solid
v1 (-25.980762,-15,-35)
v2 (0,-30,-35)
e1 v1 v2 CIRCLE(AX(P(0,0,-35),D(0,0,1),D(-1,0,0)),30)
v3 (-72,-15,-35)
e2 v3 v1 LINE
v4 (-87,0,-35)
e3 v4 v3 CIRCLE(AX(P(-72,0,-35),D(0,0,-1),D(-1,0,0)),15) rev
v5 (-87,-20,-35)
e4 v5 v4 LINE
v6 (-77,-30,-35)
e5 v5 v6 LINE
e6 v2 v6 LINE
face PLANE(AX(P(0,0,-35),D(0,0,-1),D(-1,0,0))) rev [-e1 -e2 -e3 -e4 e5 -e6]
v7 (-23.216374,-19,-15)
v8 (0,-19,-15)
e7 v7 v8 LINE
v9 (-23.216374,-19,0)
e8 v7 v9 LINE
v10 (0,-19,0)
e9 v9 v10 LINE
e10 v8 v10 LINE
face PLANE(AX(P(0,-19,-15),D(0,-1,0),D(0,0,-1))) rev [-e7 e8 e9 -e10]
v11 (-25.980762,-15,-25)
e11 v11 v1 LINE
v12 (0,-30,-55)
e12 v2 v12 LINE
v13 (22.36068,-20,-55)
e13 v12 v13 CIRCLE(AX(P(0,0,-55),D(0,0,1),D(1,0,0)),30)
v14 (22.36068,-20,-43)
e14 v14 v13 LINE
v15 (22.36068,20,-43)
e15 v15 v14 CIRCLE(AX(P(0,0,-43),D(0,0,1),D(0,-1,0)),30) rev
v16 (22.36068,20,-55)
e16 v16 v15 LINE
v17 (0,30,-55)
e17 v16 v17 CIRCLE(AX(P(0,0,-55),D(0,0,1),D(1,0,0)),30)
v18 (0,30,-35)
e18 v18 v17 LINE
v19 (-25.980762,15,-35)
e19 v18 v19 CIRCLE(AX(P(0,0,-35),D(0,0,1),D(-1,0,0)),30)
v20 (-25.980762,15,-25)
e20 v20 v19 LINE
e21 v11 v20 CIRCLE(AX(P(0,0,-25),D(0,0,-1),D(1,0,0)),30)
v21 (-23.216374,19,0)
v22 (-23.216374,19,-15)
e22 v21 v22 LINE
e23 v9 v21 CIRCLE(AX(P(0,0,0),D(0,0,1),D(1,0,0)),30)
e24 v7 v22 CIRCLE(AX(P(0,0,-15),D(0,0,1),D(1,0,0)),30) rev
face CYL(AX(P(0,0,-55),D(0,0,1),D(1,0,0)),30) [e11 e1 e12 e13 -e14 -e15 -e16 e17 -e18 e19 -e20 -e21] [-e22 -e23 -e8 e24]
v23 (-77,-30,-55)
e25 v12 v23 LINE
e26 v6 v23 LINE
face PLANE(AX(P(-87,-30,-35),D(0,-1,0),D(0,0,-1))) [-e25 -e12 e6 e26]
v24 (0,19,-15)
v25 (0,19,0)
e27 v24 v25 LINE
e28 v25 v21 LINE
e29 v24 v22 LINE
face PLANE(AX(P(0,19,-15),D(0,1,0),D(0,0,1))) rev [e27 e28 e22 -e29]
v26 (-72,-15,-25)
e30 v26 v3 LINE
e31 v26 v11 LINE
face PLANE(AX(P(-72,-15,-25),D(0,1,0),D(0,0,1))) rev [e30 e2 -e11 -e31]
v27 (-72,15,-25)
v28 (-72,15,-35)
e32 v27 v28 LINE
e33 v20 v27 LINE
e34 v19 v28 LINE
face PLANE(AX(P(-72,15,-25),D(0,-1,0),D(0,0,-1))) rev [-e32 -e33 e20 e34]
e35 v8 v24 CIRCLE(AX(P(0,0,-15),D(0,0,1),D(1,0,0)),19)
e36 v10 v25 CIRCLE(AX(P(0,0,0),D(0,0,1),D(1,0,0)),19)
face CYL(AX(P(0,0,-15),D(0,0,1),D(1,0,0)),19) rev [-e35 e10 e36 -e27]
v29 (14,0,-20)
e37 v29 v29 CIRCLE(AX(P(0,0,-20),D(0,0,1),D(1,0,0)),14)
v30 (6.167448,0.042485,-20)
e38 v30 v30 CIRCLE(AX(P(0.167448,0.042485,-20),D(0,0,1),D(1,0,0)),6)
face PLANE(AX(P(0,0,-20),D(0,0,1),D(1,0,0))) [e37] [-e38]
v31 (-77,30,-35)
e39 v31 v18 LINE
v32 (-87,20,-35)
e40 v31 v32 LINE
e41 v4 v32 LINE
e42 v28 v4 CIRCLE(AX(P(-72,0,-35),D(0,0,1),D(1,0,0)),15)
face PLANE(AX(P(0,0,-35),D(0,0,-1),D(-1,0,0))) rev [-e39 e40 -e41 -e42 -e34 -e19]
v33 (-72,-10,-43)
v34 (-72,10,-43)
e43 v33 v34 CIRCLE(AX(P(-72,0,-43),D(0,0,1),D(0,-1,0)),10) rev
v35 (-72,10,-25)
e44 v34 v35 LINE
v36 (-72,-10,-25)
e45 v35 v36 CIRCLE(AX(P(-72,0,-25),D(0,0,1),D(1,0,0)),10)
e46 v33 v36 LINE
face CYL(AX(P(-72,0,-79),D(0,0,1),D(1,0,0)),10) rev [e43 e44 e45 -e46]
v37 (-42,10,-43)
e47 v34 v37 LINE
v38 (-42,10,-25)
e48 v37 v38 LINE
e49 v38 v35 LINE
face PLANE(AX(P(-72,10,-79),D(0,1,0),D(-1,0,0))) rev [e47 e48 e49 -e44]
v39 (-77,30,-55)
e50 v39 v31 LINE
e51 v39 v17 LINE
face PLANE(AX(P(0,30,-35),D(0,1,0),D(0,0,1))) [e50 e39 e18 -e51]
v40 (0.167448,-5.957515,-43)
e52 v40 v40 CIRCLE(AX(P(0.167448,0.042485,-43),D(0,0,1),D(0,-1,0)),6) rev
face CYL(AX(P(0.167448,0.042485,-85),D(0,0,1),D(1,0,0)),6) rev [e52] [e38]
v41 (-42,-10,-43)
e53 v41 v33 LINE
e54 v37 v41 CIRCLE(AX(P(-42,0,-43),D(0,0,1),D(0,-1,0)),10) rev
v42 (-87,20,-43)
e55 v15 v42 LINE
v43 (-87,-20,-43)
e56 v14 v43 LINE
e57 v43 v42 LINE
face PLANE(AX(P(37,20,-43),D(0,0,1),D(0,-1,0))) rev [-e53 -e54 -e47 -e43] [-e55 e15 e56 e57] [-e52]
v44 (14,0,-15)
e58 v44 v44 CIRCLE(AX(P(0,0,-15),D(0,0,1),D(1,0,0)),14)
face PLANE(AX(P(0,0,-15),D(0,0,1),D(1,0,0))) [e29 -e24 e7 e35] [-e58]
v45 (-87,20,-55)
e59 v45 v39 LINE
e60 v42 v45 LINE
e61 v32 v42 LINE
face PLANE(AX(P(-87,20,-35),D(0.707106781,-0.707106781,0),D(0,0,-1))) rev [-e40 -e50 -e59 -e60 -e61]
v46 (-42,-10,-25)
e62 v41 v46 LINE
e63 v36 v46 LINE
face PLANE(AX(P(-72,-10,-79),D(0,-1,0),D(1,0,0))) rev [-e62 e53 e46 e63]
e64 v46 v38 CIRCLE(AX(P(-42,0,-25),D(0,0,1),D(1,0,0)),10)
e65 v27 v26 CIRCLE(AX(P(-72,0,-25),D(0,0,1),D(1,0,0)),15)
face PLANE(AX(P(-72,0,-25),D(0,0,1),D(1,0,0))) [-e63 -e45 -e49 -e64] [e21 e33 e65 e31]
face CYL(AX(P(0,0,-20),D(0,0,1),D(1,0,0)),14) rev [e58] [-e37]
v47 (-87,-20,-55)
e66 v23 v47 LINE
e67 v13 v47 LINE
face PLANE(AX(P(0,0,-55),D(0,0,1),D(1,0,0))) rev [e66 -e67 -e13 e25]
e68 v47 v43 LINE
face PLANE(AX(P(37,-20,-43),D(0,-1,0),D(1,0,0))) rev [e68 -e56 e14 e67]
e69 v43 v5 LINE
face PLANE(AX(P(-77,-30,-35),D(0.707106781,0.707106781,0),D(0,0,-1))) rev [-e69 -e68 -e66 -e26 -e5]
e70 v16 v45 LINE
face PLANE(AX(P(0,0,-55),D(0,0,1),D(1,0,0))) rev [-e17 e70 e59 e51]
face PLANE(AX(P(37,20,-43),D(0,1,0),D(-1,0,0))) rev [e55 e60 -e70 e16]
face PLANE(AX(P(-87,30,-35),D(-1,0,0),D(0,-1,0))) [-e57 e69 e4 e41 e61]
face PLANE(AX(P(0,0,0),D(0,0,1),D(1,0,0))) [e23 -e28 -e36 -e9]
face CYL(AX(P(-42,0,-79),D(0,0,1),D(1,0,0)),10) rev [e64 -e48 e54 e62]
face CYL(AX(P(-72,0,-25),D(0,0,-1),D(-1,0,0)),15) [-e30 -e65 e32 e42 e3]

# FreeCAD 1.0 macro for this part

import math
import FreeCAD as App
import Part
import Sketcher
Q = App.Units.Quantity


def edges_at(feature, points):
    """Names of the edges that pass closest to the given points."""
    edges = feature.Shape.Edges
    near = lambda p: min(range(len(edges)), key=lambda i: edges[i].distToShape(Part.Vertex(*p))[0])
    return sorted({f"Edge{near(p) + 1}" for p in points})

doc = App.newDocument("Part")
body = doc.addObject("PartDesign::Body", "Body")

sketch1 = body.newObject("Sketcher::SketchObject", "Sketch")
sketch1.AttachmentSupport = (doc.getObject("XY_Plane"), [""])
sketch1.MapMode = "FlatFace"
sketch1.addGeometry(Part.Circle(App.Vector(0, 0, 0), App.Vector(0, 0, 1), 30), False)
sketch1.addConstraint([
    Sketcher.Constraint("Coincident", 0, 3, -1, 1),
    Sketcher.Constraint("Diameter", 0, Q("60 mm")),
])
pad1 = body.newObject("PartDesign::Pad", "Pad")
pad1.Profile = sketch1
pad1.Length = 55
pad1.Reversed = True

sketch2 = body.newObject("Sketcher::SketchObject", "Sketch001")
sketch2.AttachmentSupport = (doc.getObject("XY_Plane"), [""])
sketch2.MapMode = "FlatFace"
sketch2.AttachmentOffset = App.Placement(App.Vector(0, 0, -35), App.Rotation())
sketch2.addGeometry([
    Part.LineSegment(App.Vector(-87, 30, 0), App.Vector(0, 30, 0)),
    Part.ArcOfCircle(Part.Circle(App.Vector(0, 0, 0), App.Vector(0, 0, 1), 30), math.radians(90), math.radians(270)),
    Part.LineSegment(App.Vector(0, -30, 0), App.Vector(-87, -30, 0)),
    Part.LineSegment(App.Vector(-87, -30, 0), App.Vector(-87, 30, 0)),
], False)
sketch2.addConstraint([
    Sketcher.Constraint("Tangent", 0, 2, 1, 1),
    Sketcher.Constraint("Tangent", 1, 2, 2, 1),
    Sketcher.Constraint("Coincident", 2, 2, 3, 1),
    Sketcher.Constraint("Coincident", 3, 2, 0, 1),
    Sketcher.Constraint("Horizontal", 0),
    Sketcher.Constraint("Horizontal", 2),
    Sketcher.Constraint("Vertical", 3),
    Sketcher.Constraint("Coincident", 1, 3, -1, 1),
    Sketcher.Constraint("Radius", 1, Q("30 mm")),
    Sketcher.Constraint("DistanceX", 0, 1, 0, 2, Q("87 mm")),
])
pad2 = body.newObject("PartDesign::Pad", "Pad001")
pad2.Profile = sketch2
pad2.Length = 20
pad2.Reversed = True

sketch3 = body.newObject("Sketcher::SketchObject", "Sketch002")
sketch3.AttachmentSupport = (doc.getObject("XY_Plane"), [""])
sketch3.MapMode = "FlatFace"
sketch3.addGeometry([
    Part.LineSegment(App.Vector(-43, -19, 0), App.Vector(0, -19, 0)),
    Part.ArcOfCircle(Part.Circle(App.Vector(0, 0, 0), App.Vector(0, 0, 1), 19), math.radians(-90), math.radians(90)),
    Part.LineSegment(App.Vector(0, 19, 0), App.Vector(-43, 19, 0)),
    Part.LineSegment(App.Vector(-43, 19, 0), App.Vector(-43, -19, 0)),
], False)
sketch3.addConstraint([
    Sketcher.Constraint("Tangent", 0, 2, 1, 1),
    Sketcher.Constraint("Tangent", 1, 2, 2, 1),
    Sketcher.Constraint("Coincident", 2, 2, 3, 1),
    Sketcher.Constraint("Coincident", 3, 2, 0, 1),
    Sketcher.Constraint("Horizontal", 0),
    Sketcher.Constraint("Horizontal", 2),
    Sketcher.Constraint("Vertical", 3),
    Sketcher.Constraint("Coincident", 1, 3, -1, 1),
    Sketcher.Constraint("Radius", 1, Q("19 mm")),
    Sketcher.Constraint("DistanceX", 0, 1, 0, 2, Q("43.251214 mm")),
])
pocket1 = body.newObject("PartDesign::Pocket", "Pocket")
pocket1.Profile = sketch3
pocket1.Length = 15

sketch4 = body.newObject("Sketcher::SketchObject", "Sketch003")
sketch4.AttachmentSupport = (doc.getObject("XY_Plane"), [""])
sketch4.MapMode = "FlatFace"
sketch4.AttachmentOffset = App.Placement(App.Vector(0, 0, -15), App.Rotation())
sketch4.addGeometry(Part.Circle(App.Vector(0, 0, 0), App.Vector(0, 0, 1), 14), False)
sketch4.addConstraint([
    Sketcher.Constraint("Coincident", 0, 3, -1, 1),
    Sketcher.Constraint("Diameter", 0, Q("28 mm")),
])
pocket2 = body.newObject("PartDesign::Pocket", "Pocket001")
pocket2.Profile = sketch4
pocket2.Length = 5

sketch5 = body.newObject("Sketcher::SketchObject", "Sketch004")
sketch5.AttachmentSupport = (doc.getObject("XY_Plane"), [""])
sketch5.MapMode = "FlatFace"
sketch5.AttachmentOffset = App.Placement(App.Vector(0, 0, -20), App.Rotation())
sketch5.addGeometry(Part.Circle(App.Vector(0, 0, 0), App.Vector(0, 0, 1), 6), False)
sketch5.addConstraint([
    Sketcher.Constraint("Diameter", 0, Q("12 mm")),
    Sketcher.Constraint("DistanceX", -1, 1, 0, 3, Q("0.167448 mm")),
    Sketcher.Constraint("DistanceY", -1, 1, 0, 3, Q("0.042485 mm")),
])
pocket3 = body.newObject("PartDesign::Pocket", "Pocket002")
pocket3.Profile = sketch5
pocket3.Length = 65
doc.recompute()

chamfer = body.newObject("PartDesign::Chamfer", "Chamfer")
chamfer.Base = (pocket3, edges_at(pocket3, [(-87, 30, -45)]))
chamfer.Size = 10
doc.recompute()

chamfer2 = body.newObject("PartDesign::Chamfer", "Chamfer001")
chamfer2.Base = (chamfer, edges_at(chamfer, [(-87, -30, -45)]))
chamfer2.Size = 10

sketch6 = body.newObject("Sketcher::SketchObject", "Sketch005")
sketch6.AttachmentSupport = (doc.getObject("XY_Plane"), [""])
sketch6.MapMode = "FlatFace"
sketch6.AttachmentOffset = App.Placement(App.Vector(0, 0, -25), App.Rotation())
sketch6.addGeometry([
    Part.LineSegment(App.Vector(-26, 15, 0), App.Vector(-72, 15, 0)),
    Part.ArcOfCircle(Part.Circle(App.Vector(-72, 0, 0), App.Vector(0, 0, 1), 15), math.radians(90), math.radians(270)),
    Part.LineSegment(App.Vector(-72, -15, 0), App.Vector(-26, -15, 0)),
    Part.ArcOfCircle(Part.Circle(App.Vector(0, 0, 0), App.Vector(0, 0, 1), 30), math.radians(150), math.radians(210)),
], False)
sketch6.addConstraint([
    Sketcher.Constraint("Tangent", 0, 2, 1, 1),
    Sketcher.Constraint("Tangent", 1, 2, 2, 1),
    Sketcher.Constraint("Coincident", 2, 2, 3, 2),
    Sketcher.Constraint("Coincident", 3, 1, 0, 1),
    Sketcher.Constraint("Horizontal", 0),
    Sketcher.Constraint("Horizontal", 2),
    Sketcher.Constraint("Coincident", 3, 3, -1, 1),
    Sketcher.Constraint("PointOnObject", 1, 3, -1),
    Sketcher.Constraint("Radius", 1, Q("15 mm")),
    Sketcher.Constraint("Radius", 3, Q("30 mm")),
    Sketcher.Constraint("DistanceX", 1, 3, -1, 1, Q("72 mm")),
])
pad3 = body.newObject("PartDesign::Pad", "Pad002")
pad3.Profile = sketch6
pad3.Length = 10
pad3.Reversed = True

sketch7 = body.newObject("Sketcher::SketchObject", "Sketch006")
sketch7.AttachmentSupport = (doc.getObject("XY_Plane"), [""])
sketch7.MapMode = "FlatFace"
sketch7.AttachmentOffset = App.Placement(App.Vector(0, 0, -25), App.Rotation())
sketch7.addGeometry([
    Part.LineSegment(App.Vector(-42, 10, 0), App.Vector(-72, 10, 0)),
    Part.ArcOfCircle(Part.Circle(App.Vector(-72, 0, 0), App.Vector(0, 0, 1), 10), math.radians(90), math.radians(270)),
    Part.LineSegment(App.Vector(-72, -10, 0), App.Vector(-42, -10, 0)),
    Part.ArcOfCircle(Part.Circle(App.Vector(-42, 0, 0), App.Vector(0, 0, 1), 10), math.radians(-90), math.radians(90)),
], False)
sketch7.addConstraint([
    Sketcher.Constraint("Tangent", 0, 2, 1, 1),
    Sketcher.Constraint("Tangent", 1, 2, 2, 1),
    Sketcher.Constraint("Tangent", 2, 2, 3, 1),
    Sketcher.Constraint("Tangent", 3, 2, 0, 1),
    Sketcher.Constraint("Horizontal", 0),
    Sketcher.Constraint("Horizontal", 2),
    Sketcher.Constraint("PointOnObject", 1, 3, -1),
    Sketcher.Constraint("Radius", 1, Q("10 mm")),
    Sketcher.Constraint("DistanceX", 0, 2, 0, 1, Q("30 mm")),
    Sketcher.Constraint("DistanceX", 1, 3, -1, 1, Q("72 mm")),
])
pocket4 = body.newObject("PartDesign::Pocket", "Pocket003")
pocket4.Profile = sketch7
pocket4.Length = 54

sketch8 = body.newObject("Sketcher::SketchObject", "Sketch007")
sketch8.AttachmentSupport = (doc.getObject("YZ_Plane"), [""])
sketch8.MapMode = "FlatFace"
sketch8.AttachmentOffset = App.Placement(App.Vector(0, 0, -87), App.Rotation())
sketch8.addGeometry([
    Part.LineSegment(App.Vector(20, -55, 0), App.Vector(-20, -55, 0)),
    Part.LineSegment(App.Vector(-20, -55, 0), App.Vector(-20, -43, 0)),
    Part.LineSegment(App.Vector(-20, -43, 0), App.Vector(20, -43, 0)),
    Part.LineSegment(App.Vector(20, -43, 0), App.Vector(20, -55, 0)),
], False)
sketch8.addConstraint([
    Sketcher.Constraint("Coincident", 0, 2, 1, 1),
    Sketcher.Constraint("Coincident", 1, 2, 2, 1),
    Sketcher.Constraint("Coincident", 2, 2, 3, 1),
    Sketcher.Constraint("Coincident", 3, 2, 0, 1),
    Sketcher.Constraint("Horizontal", 0),
    Sketcher.Constraint("Vertical", 1),
    Sketcher.Constraint("Horizontal", 2),
    Sketcher.Constraint("Vertical", 3),
    Sketcher.Constraint("DistanceX", 0, 2, 0, 1, Q("40 mm")),
    Sketcher.Constraint("DistanceY", 1, 1, 1, 2, Q("12 mm")),
    Sketcher.Constraint("DistanceX", 0, 2, -1, 1, Q("20 mm")),
    Sketcher.Constraint("DistanceY", 0, 2, -1, 1, Q("55 mm")),
])
pocket5 = body.newObject("PartDesign::Pocket", "Pocket004")
pocket5.Profile = sketch8
pocket5.Length = 124
pocket5.Reversed = True

doc.recompute()
